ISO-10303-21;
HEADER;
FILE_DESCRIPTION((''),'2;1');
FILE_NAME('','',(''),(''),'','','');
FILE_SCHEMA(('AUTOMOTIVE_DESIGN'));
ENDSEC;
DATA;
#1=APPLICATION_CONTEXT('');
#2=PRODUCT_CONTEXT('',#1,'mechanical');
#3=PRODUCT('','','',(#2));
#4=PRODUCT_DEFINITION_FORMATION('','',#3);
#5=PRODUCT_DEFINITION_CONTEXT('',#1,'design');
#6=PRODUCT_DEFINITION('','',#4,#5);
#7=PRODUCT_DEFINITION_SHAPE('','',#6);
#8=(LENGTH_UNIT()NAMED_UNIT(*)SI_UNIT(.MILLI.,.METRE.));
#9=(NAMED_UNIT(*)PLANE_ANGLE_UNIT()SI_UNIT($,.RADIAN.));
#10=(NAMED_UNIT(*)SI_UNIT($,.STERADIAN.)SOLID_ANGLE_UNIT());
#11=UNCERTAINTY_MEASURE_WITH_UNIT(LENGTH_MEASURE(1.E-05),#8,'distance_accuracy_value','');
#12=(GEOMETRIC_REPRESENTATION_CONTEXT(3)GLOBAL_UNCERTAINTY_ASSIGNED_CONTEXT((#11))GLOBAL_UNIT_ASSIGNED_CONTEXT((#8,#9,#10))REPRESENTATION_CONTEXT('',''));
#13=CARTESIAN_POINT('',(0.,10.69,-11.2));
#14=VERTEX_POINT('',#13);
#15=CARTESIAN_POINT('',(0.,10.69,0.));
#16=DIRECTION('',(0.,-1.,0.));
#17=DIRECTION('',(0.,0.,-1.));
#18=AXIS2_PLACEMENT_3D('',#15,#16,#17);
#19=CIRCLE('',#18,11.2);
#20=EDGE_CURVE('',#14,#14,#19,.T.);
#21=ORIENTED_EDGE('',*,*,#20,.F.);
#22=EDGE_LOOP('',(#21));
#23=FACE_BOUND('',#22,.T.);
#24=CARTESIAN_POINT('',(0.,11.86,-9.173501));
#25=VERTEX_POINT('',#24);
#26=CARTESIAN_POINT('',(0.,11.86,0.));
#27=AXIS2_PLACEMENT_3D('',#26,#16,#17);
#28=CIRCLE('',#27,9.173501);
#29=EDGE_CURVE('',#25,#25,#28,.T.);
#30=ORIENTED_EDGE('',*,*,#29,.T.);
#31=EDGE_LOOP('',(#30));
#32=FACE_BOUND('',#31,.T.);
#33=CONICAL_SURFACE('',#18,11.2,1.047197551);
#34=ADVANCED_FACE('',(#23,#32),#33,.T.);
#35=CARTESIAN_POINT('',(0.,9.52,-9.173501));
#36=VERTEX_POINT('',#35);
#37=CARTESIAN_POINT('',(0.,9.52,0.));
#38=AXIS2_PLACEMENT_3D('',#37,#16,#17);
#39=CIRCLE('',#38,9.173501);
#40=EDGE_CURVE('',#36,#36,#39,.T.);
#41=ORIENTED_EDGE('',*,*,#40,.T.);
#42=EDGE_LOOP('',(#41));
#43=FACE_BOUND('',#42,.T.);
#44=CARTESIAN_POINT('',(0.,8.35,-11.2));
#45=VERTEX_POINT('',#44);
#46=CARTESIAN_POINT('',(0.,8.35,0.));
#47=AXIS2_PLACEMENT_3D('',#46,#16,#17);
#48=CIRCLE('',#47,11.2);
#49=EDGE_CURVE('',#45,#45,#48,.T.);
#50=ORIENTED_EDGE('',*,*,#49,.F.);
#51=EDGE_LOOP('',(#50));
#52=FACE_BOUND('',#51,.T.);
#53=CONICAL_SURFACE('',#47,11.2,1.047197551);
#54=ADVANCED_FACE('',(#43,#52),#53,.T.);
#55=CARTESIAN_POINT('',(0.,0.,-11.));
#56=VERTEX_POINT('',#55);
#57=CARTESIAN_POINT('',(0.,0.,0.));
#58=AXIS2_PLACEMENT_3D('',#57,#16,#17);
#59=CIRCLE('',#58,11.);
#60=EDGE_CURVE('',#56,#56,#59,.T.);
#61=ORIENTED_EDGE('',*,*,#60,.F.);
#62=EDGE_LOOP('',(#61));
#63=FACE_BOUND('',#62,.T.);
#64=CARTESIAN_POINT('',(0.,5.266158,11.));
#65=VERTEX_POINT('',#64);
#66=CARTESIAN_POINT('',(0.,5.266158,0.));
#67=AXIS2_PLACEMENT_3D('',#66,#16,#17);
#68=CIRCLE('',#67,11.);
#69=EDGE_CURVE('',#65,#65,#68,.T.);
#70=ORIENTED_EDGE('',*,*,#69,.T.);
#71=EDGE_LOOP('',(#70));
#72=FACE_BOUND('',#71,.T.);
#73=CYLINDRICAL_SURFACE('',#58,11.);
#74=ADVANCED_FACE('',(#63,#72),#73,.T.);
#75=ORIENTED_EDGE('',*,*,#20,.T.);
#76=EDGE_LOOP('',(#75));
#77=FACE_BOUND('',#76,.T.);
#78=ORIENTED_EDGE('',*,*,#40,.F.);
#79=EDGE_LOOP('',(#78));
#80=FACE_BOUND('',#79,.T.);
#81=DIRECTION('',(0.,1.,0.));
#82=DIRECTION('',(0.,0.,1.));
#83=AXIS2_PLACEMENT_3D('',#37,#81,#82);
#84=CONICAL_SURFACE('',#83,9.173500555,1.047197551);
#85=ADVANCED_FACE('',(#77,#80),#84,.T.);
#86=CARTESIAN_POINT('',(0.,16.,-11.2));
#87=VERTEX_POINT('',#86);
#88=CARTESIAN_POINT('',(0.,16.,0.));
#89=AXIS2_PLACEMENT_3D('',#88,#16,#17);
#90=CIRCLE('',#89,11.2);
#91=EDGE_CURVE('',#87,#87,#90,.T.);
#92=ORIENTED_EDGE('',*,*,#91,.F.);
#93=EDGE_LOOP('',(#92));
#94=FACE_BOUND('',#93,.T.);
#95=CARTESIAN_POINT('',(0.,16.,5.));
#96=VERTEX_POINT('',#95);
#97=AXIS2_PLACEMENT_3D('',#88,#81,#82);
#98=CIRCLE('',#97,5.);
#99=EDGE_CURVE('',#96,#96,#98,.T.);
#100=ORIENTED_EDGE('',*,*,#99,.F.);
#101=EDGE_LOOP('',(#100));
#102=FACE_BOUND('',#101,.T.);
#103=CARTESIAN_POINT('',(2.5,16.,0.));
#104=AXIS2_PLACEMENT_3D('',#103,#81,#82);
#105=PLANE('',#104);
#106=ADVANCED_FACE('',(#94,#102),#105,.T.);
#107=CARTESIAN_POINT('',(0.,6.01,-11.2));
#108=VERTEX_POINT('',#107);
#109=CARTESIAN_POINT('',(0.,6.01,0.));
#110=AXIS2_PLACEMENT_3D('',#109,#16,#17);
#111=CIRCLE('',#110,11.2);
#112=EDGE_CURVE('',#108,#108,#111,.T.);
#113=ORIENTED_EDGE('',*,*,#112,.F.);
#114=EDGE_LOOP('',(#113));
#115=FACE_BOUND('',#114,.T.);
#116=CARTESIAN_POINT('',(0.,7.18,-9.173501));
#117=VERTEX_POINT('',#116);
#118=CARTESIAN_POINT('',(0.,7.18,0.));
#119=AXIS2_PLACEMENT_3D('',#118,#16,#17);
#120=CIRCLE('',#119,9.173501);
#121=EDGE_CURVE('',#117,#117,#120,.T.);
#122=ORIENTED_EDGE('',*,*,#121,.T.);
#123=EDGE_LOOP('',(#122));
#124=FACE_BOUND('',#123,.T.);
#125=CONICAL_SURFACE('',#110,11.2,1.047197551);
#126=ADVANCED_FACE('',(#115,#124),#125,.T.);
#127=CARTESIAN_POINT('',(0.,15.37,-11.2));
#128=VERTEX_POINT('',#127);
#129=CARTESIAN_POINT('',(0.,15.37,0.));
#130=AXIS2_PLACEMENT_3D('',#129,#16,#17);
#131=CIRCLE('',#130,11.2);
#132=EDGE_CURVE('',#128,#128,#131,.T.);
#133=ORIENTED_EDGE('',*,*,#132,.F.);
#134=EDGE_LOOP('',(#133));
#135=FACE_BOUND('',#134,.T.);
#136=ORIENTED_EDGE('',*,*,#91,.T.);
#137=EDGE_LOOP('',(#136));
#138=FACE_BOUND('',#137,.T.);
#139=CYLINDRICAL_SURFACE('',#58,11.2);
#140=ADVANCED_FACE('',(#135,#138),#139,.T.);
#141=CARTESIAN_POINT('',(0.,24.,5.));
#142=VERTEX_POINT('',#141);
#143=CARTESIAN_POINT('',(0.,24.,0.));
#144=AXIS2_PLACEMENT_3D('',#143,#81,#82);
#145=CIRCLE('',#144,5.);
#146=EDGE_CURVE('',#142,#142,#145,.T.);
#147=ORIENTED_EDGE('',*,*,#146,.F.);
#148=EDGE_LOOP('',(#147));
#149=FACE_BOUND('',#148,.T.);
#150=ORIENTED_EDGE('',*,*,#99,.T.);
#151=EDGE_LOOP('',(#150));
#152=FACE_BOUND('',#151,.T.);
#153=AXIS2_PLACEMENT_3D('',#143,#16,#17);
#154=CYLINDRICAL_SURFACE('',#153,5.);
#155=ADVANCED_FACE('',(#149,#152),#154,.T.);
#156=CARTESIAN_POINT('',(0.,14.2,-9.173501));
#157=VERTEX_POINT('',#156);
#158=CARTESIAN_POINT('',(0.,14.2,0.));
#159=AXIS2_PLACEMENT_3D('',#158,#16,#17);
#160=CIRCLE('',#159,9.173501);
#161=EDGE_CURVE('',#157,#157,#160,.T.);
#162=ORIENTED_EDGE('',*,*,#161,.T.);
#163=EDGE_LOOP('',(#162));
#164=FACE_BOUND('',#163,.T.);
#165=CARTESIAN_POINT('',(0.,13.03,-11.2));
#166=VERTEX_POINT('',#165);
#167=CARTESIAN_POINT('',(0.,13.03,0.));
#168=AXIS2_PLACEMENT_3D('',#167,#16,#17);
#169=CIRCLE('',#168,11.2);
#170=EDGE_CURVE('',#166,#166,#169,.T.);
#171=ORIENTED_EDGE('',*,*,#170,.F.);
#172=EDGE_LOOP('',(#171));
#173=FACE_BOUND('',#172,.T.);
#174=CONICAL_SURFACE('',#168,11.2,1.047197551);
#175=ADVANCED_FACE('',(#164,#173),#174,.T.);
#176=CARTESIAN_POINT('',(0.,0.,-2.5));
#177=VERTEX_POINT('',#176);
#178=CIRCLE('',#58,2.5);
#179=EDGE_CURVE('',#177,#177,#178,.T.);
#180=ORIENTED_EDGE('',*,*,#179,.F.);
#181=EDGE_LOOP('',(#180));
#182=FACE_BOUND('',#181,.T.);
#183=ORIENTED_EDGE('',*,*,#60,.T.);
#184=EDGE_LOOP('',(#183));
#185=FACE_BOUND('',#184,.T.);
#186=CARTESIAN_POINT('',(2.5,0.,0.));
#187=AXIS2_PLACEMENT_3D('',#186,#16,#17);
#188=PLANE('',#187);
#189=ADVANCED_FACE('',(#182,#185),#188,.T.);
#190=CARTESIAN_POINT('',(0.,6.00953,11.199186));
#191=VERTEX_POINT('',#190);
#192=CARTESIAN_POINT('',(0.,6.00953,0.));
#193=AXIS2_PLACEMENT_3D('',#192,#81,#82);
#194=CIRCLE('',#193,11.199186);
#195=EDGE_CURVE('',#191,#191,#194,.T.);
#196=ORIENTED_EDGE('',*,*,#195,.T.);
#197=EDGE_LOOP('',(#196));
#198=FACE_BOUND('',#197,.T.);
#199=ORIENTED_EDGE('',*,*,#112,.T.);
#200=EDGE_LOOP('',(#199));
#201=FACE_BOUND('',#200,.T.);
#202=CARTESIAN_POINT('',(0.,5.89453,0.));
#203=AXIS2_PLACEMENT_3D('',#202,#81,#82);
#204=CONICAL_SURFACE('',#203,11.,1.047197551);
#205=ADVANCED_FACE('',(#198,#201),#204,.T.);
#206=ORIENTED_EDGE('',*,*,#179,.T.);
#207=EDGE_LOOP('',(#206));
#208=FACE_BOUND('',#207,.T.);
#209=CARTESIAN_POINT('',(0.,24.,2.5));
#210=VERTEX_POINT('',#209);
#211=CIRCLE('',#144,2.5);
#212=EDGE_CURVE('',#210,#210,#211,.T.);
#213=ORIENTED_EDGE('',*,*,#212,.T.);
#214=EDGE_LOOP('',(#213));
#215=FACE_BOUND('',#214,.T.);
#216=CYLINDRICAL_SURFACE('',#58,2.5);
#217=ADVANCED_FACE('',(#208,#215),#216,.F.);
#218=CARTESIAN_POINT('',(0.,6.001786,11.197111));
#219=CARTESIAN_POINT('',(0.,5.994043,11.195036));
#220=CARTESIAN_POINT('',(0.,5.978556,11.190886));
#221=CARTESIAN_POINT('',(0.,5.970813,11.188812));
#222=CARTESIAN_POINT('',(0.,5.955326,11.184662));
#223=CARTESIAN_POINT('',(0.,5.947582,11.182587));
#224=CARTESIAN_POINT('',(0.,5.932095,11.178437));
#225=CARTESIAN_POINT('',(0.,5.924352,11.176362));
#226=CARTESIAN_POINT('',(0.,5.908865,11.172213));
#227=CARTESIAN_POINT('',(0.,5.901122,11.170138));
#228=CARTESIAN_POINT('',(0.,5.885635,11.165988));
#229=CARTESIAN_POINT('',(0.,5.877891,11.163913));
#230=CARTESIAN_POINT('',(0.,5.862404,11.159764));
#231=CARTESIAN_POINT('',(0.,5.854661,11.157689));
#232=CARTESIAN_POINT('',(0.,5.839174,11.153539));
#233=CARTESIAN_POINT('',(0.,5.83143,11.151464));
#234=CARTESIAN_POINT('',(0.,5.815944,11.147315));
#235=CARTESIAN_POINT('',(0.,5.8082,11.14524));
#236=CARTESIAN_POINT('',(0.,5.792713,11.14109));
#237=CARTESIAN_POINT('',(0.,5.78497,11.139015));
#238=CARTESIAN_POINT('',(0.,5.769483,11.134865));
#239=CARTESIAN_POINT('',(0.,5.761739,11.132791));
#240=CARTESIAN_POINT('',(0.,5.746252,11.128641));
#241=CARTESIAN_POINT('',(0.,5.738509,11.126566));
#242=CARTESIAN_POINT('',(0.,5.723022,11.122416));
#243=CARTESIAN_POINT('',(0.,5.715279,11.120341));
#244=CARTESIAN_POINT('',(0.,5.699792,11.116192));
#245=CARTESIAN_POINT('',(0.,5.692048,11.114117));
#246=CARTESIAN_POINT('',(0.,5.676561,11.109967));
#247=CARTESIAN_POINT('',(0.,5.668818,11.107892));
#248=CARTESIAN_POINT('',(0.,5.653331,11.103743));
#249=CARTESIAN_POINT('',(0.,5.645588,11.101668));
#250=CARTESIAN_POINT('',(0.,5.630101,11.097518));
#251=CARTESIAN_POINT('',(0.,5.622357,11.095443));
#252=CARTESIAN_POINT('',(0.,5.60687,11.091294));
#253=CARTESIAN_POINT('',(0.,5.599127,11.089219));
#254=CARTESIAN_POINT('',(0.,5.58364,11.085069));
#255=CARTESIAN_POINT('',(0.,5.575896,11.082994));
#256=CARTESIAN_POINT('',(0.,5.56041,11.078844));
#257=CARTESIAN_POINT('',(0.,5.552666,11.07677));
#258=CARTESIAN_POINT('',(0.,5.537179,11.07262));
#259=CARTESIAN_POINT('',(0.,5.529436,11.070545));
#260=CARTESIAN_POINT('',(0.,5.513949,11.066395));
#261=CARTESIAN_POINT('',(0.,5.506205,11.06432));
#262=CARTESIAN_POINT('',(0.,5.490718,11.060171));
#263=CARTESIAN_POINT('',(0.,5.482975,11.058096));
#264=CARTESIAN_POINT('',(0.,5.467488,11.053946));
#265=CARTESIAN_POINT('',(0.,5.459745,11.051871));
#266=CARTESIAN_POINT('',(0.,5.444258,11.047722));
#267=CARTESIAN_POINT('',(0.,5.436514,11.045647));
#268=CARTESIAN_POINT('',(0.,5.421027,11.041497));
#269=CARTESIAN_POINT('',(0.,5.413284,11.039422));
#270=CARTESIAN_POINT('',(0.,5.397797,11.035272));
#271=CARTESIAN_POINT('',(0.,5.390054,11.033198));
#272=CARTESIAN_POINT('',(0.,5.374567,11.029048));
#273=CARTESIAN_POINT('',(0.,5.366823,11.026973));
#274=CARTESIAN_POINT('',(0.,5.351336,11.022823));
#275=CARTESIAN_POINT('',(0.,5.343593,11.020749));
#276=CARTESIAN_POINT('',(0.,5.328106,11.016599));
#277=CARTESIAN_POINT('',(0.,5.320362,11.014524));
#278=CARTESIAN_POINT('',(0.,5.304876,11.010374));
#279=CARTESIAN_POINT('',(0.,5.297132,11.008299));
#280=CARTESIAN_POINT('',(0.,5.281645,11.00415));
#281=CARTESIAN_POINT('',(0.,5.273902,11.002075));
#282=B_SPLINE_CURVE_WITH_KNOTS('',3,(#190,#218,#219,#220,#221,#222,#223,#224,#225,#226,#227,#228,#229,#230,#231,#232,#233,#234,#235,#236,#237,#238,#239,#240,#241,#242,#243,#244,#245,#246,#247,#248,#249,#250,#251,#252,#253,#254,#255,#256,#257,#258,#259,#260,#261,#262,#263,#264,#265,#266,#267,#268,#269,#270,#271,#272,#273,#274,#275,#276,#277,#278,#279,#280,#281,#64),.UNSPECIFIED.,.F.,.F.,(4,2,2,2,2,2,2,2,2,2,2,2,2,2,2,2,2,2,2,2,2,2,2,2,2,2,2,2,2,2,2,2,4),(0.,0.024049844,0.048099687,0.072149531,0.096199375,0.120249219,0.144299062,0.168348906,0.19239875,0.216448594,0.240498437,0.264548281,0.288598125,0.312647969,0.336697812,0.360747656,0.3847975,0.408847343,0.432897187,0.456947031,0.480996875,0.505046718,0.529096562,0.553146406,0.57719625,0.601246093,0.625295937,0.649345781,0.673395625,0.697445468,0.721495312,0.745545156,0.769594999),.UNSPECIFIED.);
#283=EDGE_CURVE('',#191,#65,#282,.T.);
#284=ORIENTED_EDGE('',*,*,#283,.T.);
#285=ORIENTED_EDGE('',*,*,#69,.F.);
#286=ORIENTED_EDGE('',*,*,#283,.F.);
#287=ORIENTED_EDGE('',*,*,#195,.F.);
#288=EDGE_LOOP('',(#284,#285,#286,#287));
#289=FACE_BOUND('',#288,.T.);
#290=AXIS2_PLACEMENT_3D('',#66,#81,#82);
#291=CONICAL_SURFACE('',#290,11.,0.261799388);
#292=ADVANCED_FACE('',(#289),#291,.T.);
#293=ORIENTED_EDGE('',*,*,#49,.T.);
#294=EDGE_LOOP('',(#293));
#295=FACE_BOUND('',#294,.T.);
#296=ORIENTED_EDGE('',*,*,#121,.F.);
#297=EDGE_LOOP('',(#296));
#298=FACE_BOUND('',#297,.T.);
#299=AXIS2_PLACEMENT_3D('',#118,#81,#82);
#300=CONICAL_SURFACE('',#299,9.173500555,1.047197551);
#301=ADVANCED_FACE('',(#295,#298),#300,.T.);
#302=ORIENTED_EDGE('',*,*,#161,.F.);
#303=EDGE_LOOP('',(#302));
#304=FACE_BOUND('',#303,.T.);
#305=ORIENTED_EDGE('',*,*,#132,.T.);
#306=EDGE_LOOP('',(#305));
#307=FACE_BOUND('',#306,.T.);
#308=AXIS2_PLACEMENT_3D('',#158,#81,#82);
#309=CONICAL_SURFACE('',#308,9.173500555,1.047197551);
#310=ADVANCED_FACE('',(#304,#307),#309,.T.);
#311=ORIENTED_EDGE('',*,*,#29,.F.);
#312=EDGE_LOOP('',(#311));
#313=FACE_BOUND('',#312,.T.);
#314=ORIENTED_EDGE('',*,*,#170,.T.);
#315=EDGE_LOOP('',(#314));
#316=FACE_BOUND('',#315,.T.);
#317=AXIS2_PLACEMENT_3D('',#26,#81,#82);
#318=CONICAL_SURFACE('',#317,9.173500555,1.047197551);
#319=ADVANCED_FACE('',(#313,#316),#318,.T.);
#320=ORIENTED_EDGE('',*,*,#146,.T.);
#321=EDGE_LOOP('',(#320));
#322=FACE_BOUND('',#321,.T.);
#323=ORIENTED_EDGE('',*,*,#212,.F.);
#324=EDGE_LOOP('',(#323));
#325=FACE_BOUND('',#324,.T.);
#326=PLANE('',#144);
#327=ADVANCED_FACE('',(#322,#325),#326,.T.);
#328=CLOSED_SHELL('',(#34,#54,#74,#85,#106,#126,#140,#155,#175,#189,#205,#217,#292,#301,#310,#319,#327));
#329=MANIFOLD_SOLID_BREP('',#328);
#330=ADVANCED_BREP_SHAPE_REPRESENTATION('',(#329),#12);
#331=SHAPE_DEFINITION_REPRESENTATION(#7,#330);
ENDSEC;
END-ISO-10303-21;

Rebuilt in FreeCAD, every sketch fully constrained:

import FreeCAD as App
import Part
import Sketcher
Q = App.Units.Quantity


def edges_at(feature, points):
    """Names of the edges that pass closest to the given points."""
    edges = feature.Shape.Edges
    near = lambda p: min(range(len(edges)), key=lambda i: edges[i].distToShape(Part.Vertex(*p))[0])
    return sorted({f"Edge{near(p) + 1}" for p in points})

doc = App.newDocument("Part")
params = doc.addObject("Spreadsheet::Sheet", "Params")
for row, (alias, value) in enumerate([
    ("sketch1_height", "16 mm"),
    ("sketch1_width", "8.7 mm"),
    ("sketch1_width2", "8.5 mm"),
    ("sketch1_height2", "0.63 mm"),
    ("revolution_angle", "360 deg"),
    ("chamfer_size", "0.23 mm"),
    ("chamfer_size2", "0.628372 mm"),
    ("sketch2_diameter", "10 mm"),
    ("sketch2_diameter2", "5 mm"),
    ("pad1_length", "8 mm"),
], start=1):
    params.set(f"A{row}", alias)
    params.set(f"B{row}", "=" + value)
    params.setAlias(f"B{row}", alias)

body = doc.addObject("PartDesign::Body", "Body")

# Sketch on XY plane
sketch1 = body.newObject("Sketcher::SketchObject", "Sketch")
sketch1.AttachmentSupport = (doc.getObject("XY_Plane"), [""])
sketch1.MapMode = "FlatFace"
sketch1.addGeometry([
    Part.LineSegment(App.Vector(11, 0, 0), App.Vector(11, 5.89, 0)),  # 0
    Part.LineSegment(App.Vector(11, 5.89, 0), App.Vector(11.2, 6.01, 0)),  # 1
    Part.LineSegment(App.Vector(11.2, 6.01, 0), App.Vector(9.17, 7.18, 0)),  # 2
    Part.LineSegment(App.Vector(9.17, 7.18, 0), App.Vector(11.2, 8.35, 0)),  # 3
    Part.LineSegment(App.Vector(11.2, 8.35, 0), App.Vector(9.17, 9.52, 0)),  # 4
    Part.LineSegment(App.Vector(9.17, 9.52, 0), App.Vector(11.2, 10.69, 0)),  # 5
    Part.LineSegment(App.Vector(11.2, 10.69, 0), App.Vector(9.17, 11.86, 0)),  # 6
    Part.LineSegment(App.Vector(9.17, 11.86, 0), App.Vector(11.2, 13.03, 0)),  # 7
    Part.LineSegment(App.Vector(11.2, 13.03, 0), App.Vector(9.17, 14.2, 0)),  # 8
    Part.LineSegment(App.Vector(9.17, 14.2, 0), App.Vector(11.2, 15.37, 0)),  # 9
    Part.LineSegment(App.Vector(11.2, 15.37, 0), App.Vector(11.2, 16, 0)),  # 10
    Part.LineSegment(App.Vector(11.2, 16, 0), App.Vector(2.5, 16, 0)),  # 11
    Part.LineSegment(App.Vector(2.5, 16, 0), App.Vector(2.5, 0, 0)),  # 12
    Part.LineSegment(App.Vector(2.5, 0, 0), App.Vector(11, 0, 0)),  # 13
], False)
sketch1.addConstraint([
    Sketcher.Constraint("Coincident", 0, 2, 1, 1),
    Sketcher.Constraint("Coincident", 1, 2, 2, 1),
    Sketcher.Constraint("Coincident", 2, 2, 3, 1),
    Sketcher.Constraint("Coincident", 3, 2, 4, 1),
    Sketcher.Constraint("Coincident", 4, 2, 5, 1),
    Sketcher.Constraint("Coincident", 5, 2, 6, 1),
    Sketcher.Constraint("Coincident", 6, 2, 7, 1),
    Sketcher.Constraint("Coincident", 7, 2, 8, 1),
    Sketcher.Constraint("Coincident", 8, 2, 9, 1),
    Sketcher.Constraint("Coincident", 9, 2, 10, 1),
    Sketcher.Constraint("Coincident", 10, 2, 11, 1),
    Sketcher.Constraint("Coincident", 11, 2, 12, 1),
    Sketcher.Constraint("Coincident", 12, 2, 13, 1),
    Sketcher.Constraint("Coincident", 13, 2, 0, 1),
    Sketcher.Constraint("Vertical", 0),
    Sketcher.Constraint("Vertical", 10),
    Sketcher.Constraint("Horizontal", 11),
    Sketcher.Constraint("Vertical", 12),
    Sketcher.Constraint("Horizontal", 13),
    Sketcher.Constraint("PointOnObject", 12, 2, -1),
    Sketcher.Constraint("Parallel", 1, 3),
    Sketcher.Constraint("Parallel", 2, 4),
    Sketcher.Constraint("Parallel", 3, 5),
    Sketcher.Constraint("Parallel", 4, 6),
    Sketcher.Constraint("Parallel", 5, 7),
    Sketcher.Constraint("Parallel", 6, 8),
    Sketcher.Constraint("Parallel", 7, 9),
    Sketcher.Constraint("Vertical", 1, 2, 3, 2),
    Sketcher.Constraint("Vertical", 2, 2, 4, 2),
    Sketcher.Constraint("Vertical", 3, 2, 5, 2),
    Sketcher.Constraint("Vertical", 4, 2, 6, 2),
    Sketcher.Constraint("Vertical", 5, 2, 7, 2),
    Sketcher.Constraint("Vertical", 6, 2, 8, 2),
    Sketcher.Constraint("Vertical", 7, 2, 9, 2),
    Sketcher.Constraint("Equal", 2, 3),
    Sketcher.Constraint("DistanceY", 12, 2, 12, 1, 16.0),
    Sketcher.Constraint("Angle", 1, Q("30 deg")),
    Sketcher.Constraint("DistanceX", 11, 2, 11, 1, 8.7),
    Sketcher.Constraint("DistanceX", 13, 1, 13, 2, 8.5),
    Sketcher.Constraint("DistanceX", -1, 1, 0, 2, 11.0),
    Sketcher.Constraint("DistanceY", 10, 1, 10, 2, 0.63),
    Sketcher.Constraint("DistanceY", -1, 1, 8, 2, 14.2),
])
sketch1.setExpression("Constraints[35]", "Params.sketch1_height")
sketch1.setExpression("Constraints[37]", "Params.sketch1_width")
sketch1.setExpression("Constraints[38]", "Params.sketch1_width2")
sketch1.setExpression("Constraints[40]", "Params.sketch1_height2")
revolution = body.newObject("PartDesign::Revolution", "Revolution")
revolution.Profile = sketch1
revolution.ReferenceAxis = (sketch1, ["V_Axis"])
revolution.setExpression("Angle", "Params.revolution_angle")
doc.recompute()

chamfer = body.newObject("PartDesign::Chamfer", "Chamfer")
chamfer.Base = (revolution, edges_at(revolution, [(0, 5.895, 11)]))
chamfer.ChamferType = "Two distances"
chamfer.setExpression("Size", "Params.chamfer_size")
chamfer.setExpression("Size2", "Params.chamfer_size2")
chamfer.FlipDirection = True

# Sketch on XZ plane
sketch2 = body.newObject("Sketcher::SketchObject", "Sketch001")
sketch2.AttachmentSupport = (doc.getObject("XZ_Plane"), [""])
sketch2.MapMode = "FlatFace"
sketch2.AttachmentOffset = App.Placement(App.Vector(0, 0, -16), App.Rotation())
sketch2.addGeometry([
    Part.Circle(App.Vector(0, 0, 0), App.Vector(0, 0, 1), 5),
    Part.Circle(App.Vector(0, 0, 0), App.Vector(0, 0, 1), 2.5),
], False)
sketch2.addConstraint([
    Sketcher.Constraint("Coincident", 0, 3, -1, 1),
    Sketcher.Constraint("Coincident", 1, 3, -1, 1),
    Sketcher.Constraint("Diameter", 0, 10.0),
    Sketcher.Constraint("Diameter", 1, 5.0),
])
sketch2.setExpression("Constraints[2]", "Params.sketch2_diameter")
sketch2.setExpression("Constraints[3]", "Params.sketch2_diameter2")
pad1 = body.newObject("PartDesign::Pad", "Pad")
pad1.Profile = sketch2
pad1.setExpression("Length", "Params.pad1_length")
pad1.Reversed = True

doc.recompute()
